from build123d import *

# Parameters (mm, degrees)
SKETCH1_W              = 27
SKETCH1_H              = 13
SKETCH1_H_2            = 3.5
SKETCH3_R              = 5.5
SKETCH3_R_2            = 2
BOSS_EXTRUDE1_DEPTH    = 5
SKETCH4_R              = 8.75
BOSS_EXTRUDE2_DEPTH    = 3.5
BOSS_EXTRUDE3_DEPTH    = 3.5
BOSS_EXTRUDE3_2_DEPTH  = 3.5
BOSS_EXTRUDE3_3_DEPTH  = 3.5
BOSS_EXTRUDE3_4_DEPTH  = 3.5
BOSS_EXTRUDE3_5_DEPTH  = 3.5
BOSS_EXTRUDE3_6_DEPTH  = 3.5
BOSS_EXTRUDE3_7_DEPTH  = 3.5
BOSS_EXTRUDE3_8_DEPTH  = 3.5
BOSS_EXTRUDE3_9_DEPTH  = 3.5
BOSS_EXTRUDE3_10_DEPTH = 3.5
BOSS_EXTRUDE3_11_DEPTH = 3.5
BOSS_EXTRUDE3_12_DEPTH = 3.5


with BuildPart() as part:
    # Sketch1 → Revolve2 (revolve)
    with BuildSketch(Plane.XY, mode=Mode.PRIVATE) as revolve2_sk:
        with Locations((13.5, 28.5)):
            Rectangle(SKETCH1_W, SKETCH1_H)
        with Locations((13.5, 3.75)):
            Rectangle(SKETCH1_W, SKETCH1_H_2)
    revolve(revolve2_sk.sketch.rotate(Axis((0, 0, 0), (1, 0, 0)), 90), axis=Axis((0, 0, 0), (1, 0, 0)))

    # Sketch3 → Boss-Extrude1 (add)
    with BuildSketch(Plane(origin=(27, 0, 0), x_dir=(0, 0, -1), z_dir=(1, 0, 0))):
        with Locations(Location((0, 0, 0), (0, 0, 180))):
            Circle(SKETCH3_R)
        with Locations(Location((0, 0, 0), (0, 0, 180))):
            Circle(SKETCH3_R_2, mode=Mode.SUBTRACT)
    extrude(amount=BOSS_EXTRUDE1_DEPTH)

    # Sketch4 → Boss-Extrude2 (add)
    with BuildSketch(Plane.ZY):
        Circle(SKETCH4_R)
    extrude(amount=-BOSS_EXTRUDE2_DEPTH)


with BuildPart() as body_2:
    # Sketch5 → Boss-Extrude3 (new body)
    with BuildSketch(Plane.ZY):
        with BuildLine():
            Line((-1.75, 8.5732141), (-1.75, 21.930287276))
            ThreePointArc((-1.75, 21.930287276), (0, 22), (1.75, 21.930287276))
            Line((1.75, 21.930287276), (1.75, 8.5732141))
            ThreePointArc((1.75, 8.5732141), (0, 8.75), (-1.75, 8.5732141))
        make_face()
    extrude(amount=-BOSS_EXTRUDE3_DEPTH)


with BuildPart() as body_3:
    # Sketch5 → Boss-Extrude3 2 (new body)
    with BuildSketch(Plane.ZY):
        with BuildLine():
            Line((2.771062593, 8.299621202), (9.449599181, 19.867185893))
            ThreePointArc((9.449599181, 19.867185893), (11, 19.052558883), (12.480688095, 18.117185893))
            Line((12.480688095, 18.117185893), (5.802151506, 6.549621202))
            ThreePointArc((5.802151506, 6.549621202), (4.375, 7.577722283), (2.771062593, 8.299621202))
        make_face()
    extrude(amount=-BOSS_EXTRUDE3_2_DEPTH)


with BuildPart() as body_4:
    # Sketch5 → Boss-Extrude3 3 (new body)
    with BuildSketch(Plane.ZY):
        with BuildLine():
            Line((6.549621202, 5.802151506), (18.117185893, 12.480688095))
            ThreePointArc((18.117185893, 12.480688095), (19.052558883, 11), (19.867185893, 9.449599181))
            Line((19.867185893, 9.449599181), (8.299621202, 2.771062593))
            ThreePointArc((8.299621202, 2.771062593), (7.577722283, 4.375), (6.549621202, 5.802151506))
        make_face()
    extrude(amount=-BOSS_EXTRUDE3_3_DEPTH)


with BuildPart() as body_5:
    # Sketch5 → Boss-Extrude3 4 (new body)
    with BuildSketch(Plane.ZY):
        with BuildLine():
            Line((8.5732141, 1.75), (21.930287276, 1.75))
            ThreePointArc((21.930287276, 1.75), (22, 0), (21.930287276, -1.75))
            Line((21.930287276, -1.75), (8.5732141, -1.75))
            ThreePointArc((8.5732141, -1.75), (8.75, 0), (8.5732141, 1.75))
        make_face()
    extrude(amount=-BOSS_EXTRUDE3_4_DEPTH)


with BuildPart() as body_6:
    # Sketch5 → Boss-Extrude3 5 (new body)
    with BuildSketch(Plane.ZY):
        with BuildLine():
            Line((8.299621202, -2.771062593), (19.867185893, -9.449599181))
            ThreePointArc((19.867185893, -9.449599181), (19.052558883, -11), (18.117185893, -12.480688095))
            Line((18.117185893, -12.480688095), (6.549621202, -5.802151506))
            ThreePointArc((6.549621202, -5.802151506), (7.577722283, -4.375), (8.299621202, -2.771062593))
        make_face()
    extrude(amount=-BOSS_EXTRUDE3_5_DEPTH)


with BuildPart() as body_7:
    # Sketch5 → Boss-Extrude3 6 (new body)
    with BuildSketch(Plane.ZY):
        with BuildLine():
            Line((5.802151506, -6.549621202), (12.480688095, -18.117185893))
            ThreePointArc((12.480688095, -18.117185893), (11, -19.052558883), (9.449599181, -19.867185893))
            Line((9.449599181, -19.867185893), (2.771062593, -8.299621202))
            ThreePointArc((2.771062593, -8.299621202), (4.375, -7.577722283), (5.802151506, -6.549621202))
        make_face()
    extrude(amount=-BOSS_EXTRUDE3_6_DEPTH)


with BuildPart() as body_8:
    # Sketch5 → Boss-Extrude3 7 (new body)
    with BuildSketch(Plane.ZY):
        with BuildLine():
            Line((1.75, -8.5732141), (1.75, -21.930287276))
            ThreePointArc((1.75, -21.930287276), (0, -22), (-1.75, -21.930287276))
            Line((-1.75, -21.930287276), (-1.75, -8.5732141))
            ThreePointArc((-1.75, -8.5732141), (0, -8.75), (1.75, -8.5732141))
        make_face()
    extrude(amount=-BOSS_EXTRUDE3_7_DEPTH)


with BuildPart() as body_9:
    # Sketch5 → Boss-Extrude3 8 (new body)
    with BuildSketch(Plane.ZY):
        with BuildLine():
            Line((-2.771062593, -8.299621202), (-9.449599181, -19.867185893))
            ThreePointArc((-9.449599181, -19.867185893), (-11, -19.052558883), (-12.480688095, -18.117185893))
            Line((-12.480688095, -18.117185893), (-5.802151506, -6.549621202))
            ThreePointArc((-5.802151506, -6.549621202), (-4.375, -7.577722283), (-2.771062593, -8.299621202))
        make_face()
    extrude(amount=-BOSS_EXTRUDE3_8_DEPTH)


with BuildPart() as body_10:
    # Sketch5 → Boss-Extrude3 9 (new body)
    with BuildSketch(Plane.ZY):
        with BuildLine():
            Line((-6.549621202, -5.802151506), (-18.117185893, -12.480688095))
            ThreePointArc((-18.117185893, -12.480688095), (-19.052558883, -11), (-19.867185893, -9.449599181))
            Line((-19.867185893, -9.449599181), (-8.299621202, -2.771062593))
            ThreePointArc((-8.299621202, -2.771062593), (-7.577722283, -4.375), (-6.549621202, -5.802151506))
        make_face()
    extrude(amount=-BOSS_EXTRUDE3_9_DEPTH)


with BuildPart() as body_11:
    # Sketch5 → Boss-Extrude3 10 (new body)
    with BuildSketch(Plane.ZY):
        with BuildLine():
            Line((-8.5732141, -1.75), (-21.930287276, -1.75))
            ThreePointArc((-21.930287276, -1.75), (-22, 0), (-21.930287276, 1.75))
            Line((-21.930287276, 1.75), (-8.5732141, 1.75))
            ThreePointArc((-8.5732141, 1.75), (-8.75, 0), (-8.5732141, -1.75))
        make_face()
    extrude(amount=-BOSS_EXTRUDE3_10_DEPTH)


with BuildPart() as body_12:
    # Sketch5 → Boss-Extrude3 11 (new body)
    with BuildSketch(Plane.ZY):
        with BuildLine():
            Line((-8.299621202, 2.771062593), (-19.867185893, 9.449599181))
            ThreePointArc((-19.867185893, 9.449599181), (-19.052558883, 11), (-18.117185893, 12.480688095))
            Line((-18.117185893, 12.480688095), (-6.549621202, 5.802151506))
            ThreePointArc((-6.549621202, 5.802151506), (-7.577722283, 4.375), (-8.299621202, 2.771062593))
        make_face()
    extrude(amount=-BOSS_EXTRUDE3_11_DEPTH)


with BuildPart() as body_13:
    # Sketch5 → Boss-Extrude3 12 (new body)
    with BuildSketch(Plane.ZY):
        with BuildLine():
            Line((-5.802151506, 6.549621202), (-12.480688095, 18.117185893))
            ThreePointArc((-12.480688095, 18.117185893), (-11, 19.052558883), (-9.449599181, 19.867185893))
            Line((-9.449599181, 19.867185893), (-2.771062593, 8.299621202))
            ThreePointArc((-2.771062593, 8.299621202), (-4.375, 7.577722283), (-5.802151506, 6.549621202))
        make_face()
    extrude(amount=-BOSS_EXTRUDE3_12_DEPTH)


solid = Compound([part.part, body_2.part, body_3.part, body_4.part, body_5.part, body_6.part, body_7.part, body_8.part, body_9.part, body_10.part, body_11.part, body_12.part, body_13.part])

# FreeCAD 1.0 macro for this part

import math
import FreeCAD as App
import Part
import Sketcher
from FreeCAD import Vector
Q = App.Units.Quantity


def add_polygon(sketch, points):
    """Adds a closed chain of lines whose ends are joined by coincident constraints."""
    first, n = sketch.GeometryCount, len(points)
    for a, b in zip(points, points[1:] + points[:1]):
        sketch.addGeometry(Part.LineSegment(App.Vector(*a, 0), App.Vector(*b, 0)), False)
    for i in range(n):
        sketch.addConstraint(Sketcher.Constraint("Coincident", first + i, 2, first + (i + 1) % n, 1))

doc = App.newDocument("Part")
params = doc.addObject("Spreadsheet::Sheet", "Params")
for row, (alias, value) in enumerate([
    ("sketch1_width", "27 mm"),
    ("sketch1_height", "13 mm"),
    ("sketch1_height2", "3.5 mm"),
    ("revolution_angle", "360 deg"),
    ("sketch2_diameter", "11 mm"),
    ("sketch2_diameter2", "4 mm"),
    ("pad1_length", "5 mm"),
    ("sketch3_diameter", "17.5 mm"),
    ("pad2_length", "3.5 mm"),
    ("sketch4_radius", "22 mm"),
    ("sketch4_radius2", "8.75 mm"),
    ("pad3_length", "3.5 mm"),
    ("sketch5_radius", "22 mm"),
    ("sketch5_radius2", "8.75 mm"),
    ("pad4_length", "3.5 mm"),
    ("sketch6_radius", "22 mm"),
    ("sketch6_radius2", "8.75 mm"),
    ("pad5_length", "3.5 mm"),
    ("sketch7_radius", "22 mm"),
    ("sketch7_radius2", "8.75 mm"),
    ("pad6_length", "3.5 mm"),
    ("sketch8_radius", "22 mm"),
    ("sketch8_radius2", "8.75 mm"),
    ("pad7_length", "3.5 mm"),
    ("sketch9_radius", "22 mm"),
    ("sketch9_radius2", "8.75 mm"),
    ("pad8_length", "3.5 mm"),
    ("sketch10_radius", "22 mm"),
    ("sketch10_radius2", "8.75 mm"),
    ("pad9_length", "3.5 mm"),
    ("sketch11_radius", "22 mm"),
    ("sketch11_radius2", "8.75 mm"),
    ("pad10_length", "3.5 mm"),
    ("sketch12_radius", "22 mm"),
    ("sketch12_radius2", "8.75 mm"),
    ("pad11_length", "3.5 mm"),
    ("sketch13_radius", "22 mm"),
    ("sketch13_radius2", "8.75 mm"),
    ("pad12_length", "3.5 mm"),
    ("sketch14_radius", "22 mm"),
    ("sketch14_radius2", "8.75 mm"),
    ("pad13_length", "3.5 mm"),
    ("sketch15_radius", "22 mm"),
    ("sketch15_radius2", "8.75 mm"),
    ("pad14_length", "3.5 mm"),
], start=1):
    params.set(f"A{row}", alias)
    params.set(f"B{row}", "=" + value)
    params.setAlias(f"B{row}", alias)

body = doc.addObject("PartDesign::Body", "Body")
body.AllowCompound = True

sketch1 = body.newObject("Sketcher::SketchObject", "Sketch")
sketch1.AttachmentSupport = (doc.getObject("XY_Plane"), [""])
sketch1.MapMode = "FlatFace"
add_polygon(sketch1, [(0, 35), (0, 22), (27, 22), (27, 35)])
add_polygon(sketch1, [(0, 5.5), (0, 2), (27, 2), (27, 5.5)])
sketch1.addConstraint([
    Sketcher.Constraint("Vertical", 0),
    Sketcher.Constraint("Horizontal", 1),
    Sketcher.Constraint("Vertical", 2),
    Sketcher.Constraint("Horizontal", 3),
    Sketcher.Constraint("Vertical", 4),
    Sketcher.Constraint("Horizontal", 5),
    Sketcher.Constraint("Vertical", 6),
    Sketcher.Constraint("Horizontal", 7),
    Sketcher.Constraint("PointOnObject", 0, 2, -2),
    Sketcher.Constraint("PointOnObject", 4, 2, -2),
    Sketcher.Constraint("Vertical", 2, 2, 5, 2),
    Sketcher.Constraint("DistanceX", 1, 1, 1, 2, 27.0),
    Sketcher.Constraint("DistanceY", 0, 2, 0, 1, 13.0),
    Sketcher.Constraint("DistanceY", 4, 2, 4, 1, 3.5),
    Sketcher.Constraint("DistanceY", -1, 1, 0, 2, 22.0),
    Sketcher.Constraint("DistanceY", -1, 1, 4, 2, 2.0),
])
sketch1.setExpression("Constraints[19]", "Params.sketch1_width")
sketch1.setExpression("Constraints[20]", "Params.sketch1_height")
sketch1.setExpression("Constraints[21]", "Params.sketch1_height2")
revolution = body.newObject("PartDesign::Revolution", "Revolution")
revolution.Profile = sketch1
revolution.ReferenceAxis = (sketch1, ["H_Axis"])
revolution.setExpression("Angle", "Params.revolution_angle")

sketch2 = body.newObject("Sketcher::SketchObject", "Sketch001")
sketch2.AttachmentSupport = (doc.getObject("YZ_Plane"), [""])
sketch2.MapMode = "FlatFace"
sketch2.AttachmentOffset = App.Placement(Vector(0, 0, 27), App.Rotation())
sketch2.addGeometry([
    Part.Circle(Vector(0, 0, 0), Vector(0, 0, 1), 5.5),
    Part.Circle(Vector(0, 0, 0), Vector(0, 0, 1), 2),
], False)
sketch2.addConstraint([
    Sketcher.Constraint("Coincident", 0, 3, -1, 1),
    Sketcher.Constraint("Coincident", 1, 3, -1, 1),
    Sketcher.Constraint("Diameter", 0, 11.0),
    Sketcher.Constraint("Diameter", 1, 4.0),
])
sketch2.setExpression("Constraints[2]", "Params.sketch2_diameter")
sketch2.setExpression("Constraints[3]", "Params.sketch2_diameter2")
pad1 = body.newObject("PartDesign::Pad", "Pad")
pad1.Profile = sketch2
pad1.setExpression("Length", "Params.pad1_length")

sketch3 = body.newObject("Sketcher::SketchObject", "Sketch002")
sketch3.AttachmentSupport = (doc.getObject("YZ_Plane"), [""])
sketch3.MapMode = "FlatFace"
sketch3.addGeometry(Part.Circle(Vector(0, 0, 0), Vector(0, 0, 1), 9), False)
sketch3.addConstraint([
    Sketcher.Constraint("Coincident", 0, 3, -1, 1),
    Sketcher.Constraint("Diameter", 0, 17.5),
])
sketch3.setExpression("Constraints[1]", "Params.sketch3_diameter")
pad2 = body.newObject("PartDesign::Pad", "Pad001")
pad2.Profile = sketch3
pad2.setExpression("Length", "Params.pad2_length")
body2 = doc.addObject("PartDesign::Body", "Body001")

sketch4 = body2.newObject("Sketcher::SketchObject", "Sketch003")
sketch4.AttachmentSupport = (doc.getObject("YZ_Plane001"), [""])
sketch4.MapMode = "FlatFace"
sketch4.addGeometry([
    Part.LineSegment(Vector(21.9, -1.8, 0), Vector(8.6, -1.8, 0)),
    Part.ArcOfCircle(Part.Circle(Vector(0, 0, 0), Vector(0, 0, 1), 8.8), math.radians(-12), math.radians(12)),
    Part.LineSegment(Vector(8.6, 1.8, 0), Vector(21.9, 1.8, 0)),
    Part.ArcOfCircle(Part.Circle(Vector(0, 0, 0), Vector(0, 0, 1), 22), math.radians(-4.56), math.radians(4.56)),
], False)
sketch4.addConstraint([
    Sketcher.Constraint("Coincident", 0, 2, 1, 1),
    Sketcher.Constraint("Coincident", 1, 2, 2, 1),
    Sketcher.Constraint("Coincident", 2, 2, 3, 2),
    Sketcher.Constraint("Coincident", 3, 1, 0, 1),
    Sketcher.Constraint("Horizontal", 0),
    Sketcher.Constraint("Horizontal", 2),
    Sketcher.Constraint("Coincident", 1, 3, -1, 1),
    Sketcher.Constraint("Coincident", 3, 3, -1, 1),
    Sketcher.Constraint("Vertical", 0, 2, 1, 2),
    Sketcher.Constraint("Radius", 3, 22.0),
    Sketcher.Constraint("Radius", 1, 8.75),
    Sketcher.Constraint("DistanceY", 0, 2, 1, 2, 3.5),
])
sketch4.setExpression("Constraints[9]", "Params.sketch4_radius")
sketch4.setExpression("Constraints[10]", "Params.sketch4_radius2")
pad3 = body2.newObject("PartDesign::Pad", "Pad002")
pad3.Profile = sketch4
pad3.setExpression("Length", "Params.pad3_length")
body3 = doc.addObject("PartDesign::Body", "Body002")

sketch5 = body3.newObject("Sketcher::SketchObject", "Sketch004")
sketch5.AttachmentSupport = (doc.getObject("YZ_Plane002"), [""])
sketch5.MapMode = "FlatFace"
sketch5.addGeometry([
    Part.LineSegment(Vector(19.9, 9.4, 0), Vector(8.3, 2.8, 0)),
    Part.ArcOfCircle(Part.Circle(Vector(0, 0, 0), Vector(0, 0, 1), 8.7), math.radians(18), math.radians(42)),
    Part.LineSegment(Vector(6.5, 5.8, 0), Vector(18.1, 12.5, 0)),
    Part.ArcOfCircle(Part.Circle(Vector(0, 0, 0), Vector(0, 0, 1), 22), math.radians(25.44), math.radians(34.56)),
], False)
sketch5.addConstraint([
    Sketcher.Constraint("Coincident", 0, 2, 1, 1),
    Sketcher.Constraint("Coincident", 1, 2, 2, 1),
    Sketcher.Constraint("Coincident", 2, 2, 3, 2),
    Sketcher.Constraint("Coincident", 3, 1, 0, 1),
    Sketcher.Constraint("Coincident", 1, 3, -1, 1),
    Sketcher.Constraint("Coincident", 3, 3, -1, 1),
    Sketcher.Constraint("Parallel", 0, 2),
    Sketcher.Constraint("Equal", 0, 2),
    Sketcher.Constraint("Radius", 3, 22.0),
    Sketcher.Constraint("Angle", 0, Q("-150 deg")),
    Sketcher.Constraint("Radius", 1, 8.75),
    Sketcher.Constraint("DistanceX", 1, 2, 0, 2, 1.75),
])
sketch5.setExpression("Constraints[8]", "Params.sketch5_radius")
sketch5.setExpression("Constraints[10]", "Params.sketch5_radius2")
pad4 = body3.newObject("PartDesign::Pad", "Pad003")
pad4.Profile = sketch5
pad4.setExpression("Length", "Params.pad4_length")
body4 = doc.addObject("PartDesign::Body", "Body003")

sketch6 = body4.newObject("Sketcher::SketchObject", "Sketch005")
sketch6.AttachmentSupport = (doc.getObject("YZ_Plane003"), [""])
sketch6.MapMode = "FlatFace"
sketch6.addGeometry([
    Part.LineSegment(Vector(12.5, 18.1, 0), Vector(5.8, 6.5, 0)),
    Part.ArcOfCircle(Part.Circle(Vector(0, 0, 0), Vector(0, 0, 1), 8.7), math.radians(48), math.radians(72)),
    Part.LineSegment(Vector(2.8, 8.3, 0), Vector(9.4, 19.9, 0)),
    Part.ArcOfCircle(Part.Circle(Vector(0, 0, 0), Vector(0, 0, 1), 22), math.radians(55.44), math.radians(64.56)),
], False)
sketch6.addConstraint([
    Sketcher.Constraint("Coincident", 0, 2, 1, 1),
    Sketcher.Constraint("Coincident", 1, 2, 2, 1),
    Sketcher.Constraint("Coincident", 2, 2, 3, 2),
    Sketcher.Constraint("Coincident", 3, 1, 0, 1),
    Sketcher.Constraint("Coincident", 1, 3, -1, 1),
    Sketcher.Constraint("Coincident", 3, 3, -1, 1),
    Sketcher.Constraint("Parallel", 0, 2),
    Sketcher.Constraint("Equal", 0, 2),
    Sketcher.Constraint("Radius", 3, 22.0),
    Sketcher.Constraint("Angle", 0, Q("-120 deg")),
    Sketcher.Constraint("Radius", 1, 8.75),
    Sketcher.Constraint("DistanceY", 0, 2, 1, 2, 1.75),
])
sketch6.setExpression("Constraints[8]", "Params.sketch6_radius")
sketch6.setExpression("Constraints[10]", "Params.sketch6_radius2")
pad5 = body4.newObject("PartDesign::Pad", "Pad004")
pad5.Profile = sketch6
pad5.setExpression("Length", "Params.pad5_length")
body5 = doc.addObject("PartDesign::Body", "Body004")

sketch7 = body5.newObject("Sketcher::SketchObject", "Sketch006")
sketch7.AttachmentSupport = (doc.getObject("YZ_Plane004"), [""])
sketch7.MapMode = "FlatFace"
sketch7.addGeometry([
    Part.LineSegment(Vector(1.8, 21.9, 0), Vector(1.8, 8.6, 0)),
    Part.ArcOfCircle(Part.Circle(Vector(0, 0, 0), Vector(0, 0, 1), 8.8), math.radians(78), math.radians(102)),
    Part.LineSegment(Vector(-1.8, 8.6, 0), Vector(-1.8, 21.9, 0)),
    Part.ArcOfCircle(Part.Circle(Vector(0, 0, 0), Vector(0, 0, 1), 22), math.radians(85.44), math.radians(94.56)),
], False)
sketch7.addConstraint([
    Sketcher.Constraint("Coincident", 0, 2, 1, 1),
    Sketcher.Constraint("Coincident", 1, 2, 2, 1),
    Sketcher.Constraint("Coincident", 2, 2, 3, 2),
    Sketcher.Constraint("Coincident", 3, 1, 0, 1),
    Sketcher.Constraint("Vertical", 0),
    Sketcher.Constraint("Vertical", 2),
    Sketcher.Constraint("Coincident", 1, 3, -1, 1),
    Sketcher.Constraint("Coincident", 3, 3, -1, 1),
    Sketcher.Constraint("Horizontal", 0, 2, 1, 2),
    Sketcher.Constraint("Radius", 3, 22.0),
    Sketcher.Constraint("Radius", 1, 8.75),
    Sketcher.Constraint("DistanceX", 1, 2, 0, 2, 3.5),
])
sketch7.setExpression("Constraints[9]", "Params.sketch7_radius")
sketch7.setExpression("Constraints[10]", "Params.sketch7_radius2")
pad6 = body5.newObject("PartDesign::Pad", "Pad005")
pad6.Profile = sketch7
pad6.setExpression("Length", "Params.pad6_length")
body6 = doc.addObject("PartDesign::Body", "Body005")

sketch8 = body6.newObject("Sketcher::SketchObject", "Sketch007")
sketch8.AttachmentSupport = (doc.getObject("YZ_Plane005"), [""])
sketch8.MapMode = "FlatFace"
sketch8.addGeometry([
    Part.LineSegment(Vector(-9.4, 19.9, 0), Vector(-2.8, 8.3, 0)),
    Part.ArcOfCircle(Part.Circle(Vector(0, 0, 0), Vector(0, 0, 1), 8.7), math.radians(108), math.radians(132)),
    Part.LineSegment(Vector(-5.8, 6.5, 0), Vector(-12.5, 18.1, 0)),
    Part.ArcOfCircle(Part.Circle(Vector(0, 0, 0), Vector(0, 0, 1), 22), math.radians(115.44), math.radians(124.56)),
], False)
sketch8.addConstraint([
    Sketcher.Constraint("Coincident", 0, 2, 1, 1),
    Sketcher.Constraint("Coincident", 1, 2, 2, 1),
    Sketcher.Constraint("Coincident", 2, 2, 3, 2),
    Sketcher.Constraint("Coincident", 3, 1, 0, 1),
    Sketcher.Constraint("Coincident", 1, 3, -1, 1),
    Sketcher.Constraint("Coincident", 3, 3, -1, 1),
    Sketcher.Constraint("Parallel", 0, 2),
    Sketcher.Constraint("Equal", 0, 2),
    Sketcher.Constraint("Radius", 3, 22.0),
    Sketcher.Constraint("Angle", 0, Q("-60 deg")),
    Sketcher.Constraint("Radius", 1, 8.75),
    Sketcher.Constraint("DistanceY", 1, 2, 0, 2, 1.75),
])
sketch8.setExpression("Constraints[8]", "Params.sketch8_radius")
sketch8.setExpression("Constraints[10]", "Params.sketch8_radius2")
pad7 = body6.newObject("PartDesign::Pad", "Pad006")
pad7.Profile = sketch8
pad7.setExpression("Length", "Params.pad7_length")
body7 = doc.addObject("PartDesign::Body", "Body006")

sketch9 = body7.newObject("Sketcher::SketchObject", "Sketch008")
sketch9.AttachmentSupport = (doc.getObject("YZ_Plane006"), [""])
sketch9.MapMode = "FlatFace"
sketch9.addGeometry([
    Part.LineSegment(Vector(-18.1, 12.5, 0), Vector(-6.5, 5.8, 0)),
    Part.ArcOfCircle(Part.Circle(Vector(0, 0, 0), Vector(0, 0, 1), 8.7), math.radians(138), math.radians(162)),
    Part.LineSegment(Vector(-8.3, 2.8, 0), Vector(-19.9, 9.4, 0)),
    Part.ArcOfCircle(Part.Circle(Vector(0, 0, 0), Vector(0, 0, 1), 22), math.radians(145.44), math.radians(154.56)),
], False)
sketch9.addConstraint([
    Sketcher.Constraint("Coincident", 0, 2, 1, 1),
    Sketcher.Constraint("Coincident", 1, 2, 2, 1),
    Sketcher.Constraint("Coincident", 2, 2, 3, 2),
    Sketcher.Constraint("Coincident", 3, 1, 0, 1),
    Sketcher.Constraint("Coincident", 1, 3, -1, 1),
    Sketcher.Constraint("Coincident", 3, 3, -1, 1),
    Sketcher.Constraint("Parallel", 0, 2),
    Sketcher.Constraint("Equal", 0, 2),
    Sketcher.Constraint("Radius", 3, 22.0),
    Sketcher.Constraint("Angle", 0, Q("-30 deg")),
    Sketcher.Constraint("Radius", 1, 8.75),
    Sketcher.Constraint("DistanceX", 1, 2, 0, 2, 1.75),
])
sketch9.setExpression("Constraints[8]", "Params.sketch9_radius")
sketch9.setExpression("Constraints[10]", "Params.sketch9_radius2")
pad8 = body7.newObject("PartDesign::Pad", "Pad007")
pad8.Profile = sketch9
pad8.setExpression("Length", "Params.pad8_length")
body8 = doc.addObject("PartDesign::Body", "Body007")

sketch10 = body8.newObject("Sketcher::SketchObject", "Sketch009")
sketch10.AttachmentSupport = (doc.getObject("YZ_Plane007"), [""])
sketch10.MapMode = "FlatFace"
sketch10.addGeometry([
    Part.LineSegment(Vector(-21.9, 1.8, 0), Vector(-8.6, 1.8, 0)),
    Part.ArcOfCircle(Part.Circle(Vector(0, 0, 0), Vector(0, 0, 1), 8.8), math.radians(168), math.radians(192)),
    Part.LineSegment(Vector(-8.6, -1.8, 0), Vector(-21.9, -1.8, 0)),
    Part.ArcOfCircle(Part.Circle(Vector(0, 0, 0), Vector(0, 0, 1), 22), math.radians(175.44), math.radians(184.56)),
], False)
sketch10.addConstraint([
    Sketcher.Constraint("Coincident", 0, 2, 1, 1),
    Sketcher.Constraint("Coincident", 1, 2, 2, 1),
    Sketcher.Constraint("Coincident", 2, 2, 3, 2),
    Sketcher.Constraint("Coincident", 3, 1, 0, 1),
    Sketcher.Constraint("Horizontal", 0),
    Sketcher.Constraint("Horizontal", 2),
    Sketcher.Constraint("Coincident", 1, 3, -1, 1),
    Sketcher.Constraint("Coincident", 3, 3, -1, 1),
    Sketcher.Constraint("Vertical", 0, 2, 1, 2),
    Sketcher.Constraint("Radius", 3, 22.0),
    Sketcher.Constraint("Radius", 1, 8.75),
    Sketcher.Constraint("DistanceY", 1, 2, 0, 2, 3.5),
])
sketch10.setExpression("Constraints[9]", "Params.sketch10_radius")
sketch10.setExpression("Constraints[10]", "Params.sketch10_radius2")
pad9 = body8.newObject("PartDesign::Pad", "Pad008")
pad9.Profile = sketch10
pad9.setExpression("Length", "Params.pad9_length")
body9 = doc.addObject("PartDesign::Body", "Body008")

sketch11 = body9.newObject("Sketcher::SketchObject", "Sketch010")
sketch11.AttachmentSupport = (doc.getObject("YZ_Plane008"), [""])
sketch11.MapMode = "FlatFace"
sketch11.addGeometry([
    Part.LineSegment(Vector(-19.9, -9.4, 0), Vector(-8.3, -2.8, 0)),
    Part.ArcOfCircle(Part.Circle(Vector(0, 0, 0), Vector(0, 0, 1), 8.7), math.radians(-162), math.radians(-138)),
    Part.LineSegment(Vector(-6.5, -5.8, 0), Vector(-18.1, -12.5, 0)),
    Part.ArcOfCircle(Part.Circle(Vector(0, 0, 0), Vector(0, 0, 1), 22), math.radians(-154.56), math.radians(-145.44)),
], False)
sketch11.addConstraint([
    Sketcher.Constraint("Coincident", 0, 2, 1, 1),
    Sketcher.Constraint("Coincident", 1, 2, 2, 1),
    Sketcher.Constraint("Coincident", 2, 2, 3, 2),
    Sketcher.Constraint("Coincident", 3, 1, 0, 1),
    Sketcher.Constraint("Coincident", 1, 3, -1, 1),
    Sketcher.Constraint("Coincident", 3, 3, -1, 1),
    Sketcher.Constraint("Parallel", 0, 2),
    Sketcher.Constraint("Equal", 0, 2),
    Sketcher.Constraint("Radius", 3, 22.0),
    Sketcher.Constraint("Angle", 0, Q("30 deg")),
    Sketcher.Constraint("Radius", 1, 8.75),
    Sketcher.Constraint("DistanceX", 0, 2, 1, 2, 1.75),
])
sketch11.setExpression("Constraints[8]", "Params.sketch11_radius")
sketch11.setExpression("Constraints[10]", "Params.sketch11_radius2")
pad10 = body9.newObject("PartDesign::Pad", "Pad009")
pad10.Profile = sketch11
pad10.setExpression("Length", "Params.pad10_length")
body10 = doc.addObject("PartDesign::Body", "Body009")

sketch12 = body10.newObject("Sketcher::SketchObject", "Sketch011")
sketch12.AttachmentSupport = (doc.getObject("YZ_Plane009"), [""])
sketch12.MapMode = "FlatFace"
sketch12.addGeometry([
    Part.LineSegment(Vector(-12.5, -18.1, 0), Vector(-5.8, -6.5, 0)),
    Part.ArcOfCircle(Part.Circle(Vector(0, 0, 0), Vector(0, 0, 1), 8.7), math.radians(-132), math.radians(-108)),
    Part.LineSegment(Vector(-2.8, -8.3, 0), Vector(-9.4, -19.9, 0)),
    Part.ArcOfCircle(Part.Circle(Vector(0, 0, 0), Vector(0, 0, 1), 22), math.radians(-124.56), math.radians(-115.44)),
], False)
sketch12.addConstraint([
    Sketcher.Constraint("Coincident", 0, 2, 1, 1),
    Sketcher.Constraint("Coincident", 1, 2, 2, 1),
    Sketcher.Constraint("Coincident", 2, 2, 3, 2),
    Sketcher.Constraint("Coincident", 3, 1, 0, 1),
    Sketcher.Constraint("Coincident", 1, 3, -1, 1),
    Sketcher.Constraint("Coincident", 3, 3, -1, 1),
    Sketcher.Constraint("Parallel", 0, 2),
    Sketcher.Constraint("Equal", 0, 2),
    Sketcher.Constraint("Radius", 3, 22.0),
    Sketcher.Constraint("Angle", 0, Q("60 deg")),
    Sketcher.Constraint("Radius", 1, 8.75),
    Sketcher.Constraint("DistanceY", 1, 2, 0, 2, 1.75),
])
sketch12.setExpression("Constraints[8]", "Params.sketch12_radius")
sketch12.setExpression("Constraints[10]", "Params.sketch12_radius2")
pad11 = body10.newObject("PartDesign::Pad", "Pad010")
pad11.Profile = sketch12
pad11.setExpression("Length", "Params.pad11_length")
body11 = doc.addObject("PartDesign::Body", "Body010")

sketch13 = body11.newObject("Sketcher::SketchObject", "Sketch012")
sketch13.AttachmentSupport = (doc.getObject("YZ_Plane010"), [""])
sketch13.MapMode = "FlatFace"
sketch13.addGeometry([
    Part.LineSegment(Vector(-1.8, -21.9, 0), Vector(-1.8, -8.6, 0)),
    Part.ArcOfCircle(Part.Circle(Vector(0, 0, 0), Vector(0, 0, 1), 8.8), math.radians(-102), math.radians(-78)),
    Part.LineSegment(Vector(1.8, -8.6, 0), Vector(1.8, -21.9, 0)),
    Part.ArcOfCircle(Part.Circle(Vector(0, 0, 0), Vector(0, 0, 1), 22), math.radians(-94.56), math.radians(-85.44)),
], False)
sketch13.addConstraint([
    Sketcher.Constraint("Coincident", 0, 2, 1, 1),
    Sketcher.Constraint("Coincident", 1, 2, 2, 1),
    Sketcher.Constraint("Coincident", 2, 2, 3, 2),
    Sketcher.Constraint("Coincident", 3, 1, 0, 1),
    Sketcher.Constraint("Vertical", 0),
    Sketcher.Constraint("Vertical", 2),
    Sketcher.Constraint("Coincident", 1, 3, -1, 1),
    Sketcher.Constraint("Coincident", 3, 3, -1, 1),
    Sketcher.Constraint("Horizontal", 0, 2, 1, 2),
    Sketcher.Constraint("Radius", 3, 22.0),
    Sketcher.Constraint("Radius", 1, 8.75),
    Sketcher.Constraint("DistanceX", 0, 2, 1, 2, 3.5),
])
sketch13.setExpression("Constraints[9]", "Params.sketch13_radius")
sketch13.setExpression("Constraints[10]", "Params.sketch13_radius2")
pad12 = body11.newObject("PartDesign::Pad", "Pad011")
pad12.Profile = sketch13
pad12.setExpression("Length", "Params.pad12_length")
body12 = doc.addObject("PartDesign::Body", "Body011")

sketch14 = body12.newObject("Sketcher::SketchObject", "Sketch013")
sketch14.AttachmentSupport = (doc.getObject("YZ_Plane011"), [""])
sketch14.MapMode = "FlatFace"
sketch14.addGeometry([
    Part.LineSegment(Vector(9.4, -19.9, 0), Vector(2.8, -8.3, 0)),
    Part.ArcOfCircle(Part.Circle(Vector(0, 0, 0), Vector(0, 0, 1), 8.7), math.radians(-72), math.radians(-48)),
    Part.LineSegment(Vector(5.8, -6.5, 0), Vector(12.5, -18.1, 0)),
    Part.ArcOfCircle(Part.Circle(Vector(0, 0, 0), Vector(0, 0, 1), 22), math.radians(-64.56), math.radians(-55.44)),
], False)
sketch14.addConstraint([
    Sketcher.Constraint("Coincident", 0, 2, 1, 1),
    Sketcher.Constraint("Coincident", 1, 2, 2, 1),
    Sketcher.Constraint("Coincident", 2, 2, 3, 2),
    Sketcher.Constraint("Coincident", 3, 1, 0, 1),
    Sketcher.Constraint("Coincident", 1, 3, -1, 1),
    Sketcher.Constraint("Coincident", 3, 3, -1, 1),
    Sketcher.Constraint("Parallel", 0, 2),
    Sketcher.Constraint("Equal", 0, 2),
    Sketcher.Constraint("Radius", 3, 22.0),
    Sketcher.Constraint("Angle", 0, Q("120 deg")),
    Sketcher.Constraint("Radius", 1, 8.75),
    Sketcher.Constraint("DistanceY", 0, 2, 1, 2, 1.75),
])
sketch14.setExpression("Constraints[8]", "Params.sketch14_radius")
sketch14.setExpression("Constraints[10]", "Params.sketch14_radius2")
pad13 = body12.newObject("PartDesign::Pad", "Pad012")
pad13.Profile = sketch14
pad13.setExpression("Length", "Params.pad13_length")
body13 = doc.addObject("PartDesign::Body", "Body012")

sketch15 = body13.newObject("Sketcher::SketchObject", "Sketch014")
sketch15.AttachmentSupport = (doc.getObject("YZ_Plane012"), [""])
sketch15.MapMode = "FlatFace"
sketch15.addGeometry([
    Part.LineSegment(Vector(18.1, -12.5, 0), Vector(6.5, -5.8, 0)),
    Part.ArcOfCircle(Part.Circle(Vector(0, 0, 0), Vector(0, 0, 1), 8.7), math.radians(-42), math.radians(-18)),
    Part.LineSegment(Vector(8.3, -2.8, 0), Vector(19.9, -9.4, 0)),
    Part.ArcOfCircle(Part.Circle(Vector(0, 0, 0), Vector(0, 0, 1), 22), math.radians(-34.56), math.radians(-25.44)),
], False)
sketch15.addConstraint([
    Sketcher.Constraint("Coincident", 0, 2, 1, 1),
    Sketcher.Constraint("Coincident", 1, 2, 2, 1),
    Sketcher.Constraint("Coincident", 2, 2, 3, 2),
    Sketcher.Constraint("Coincident", 3, 1, 0, 1),
    Sketcher.Constraint("Coincident", 1, 3, -1, 1),
    Sketcher.Constraint("Coincident", 3, 3, -1, 1),
    Sketcher.Constraint("Parallel", 0, 2),
    Sketcher.Constraint("Equal", 0, 2),
    Sketcher.Constraint("Radius", 3, 22.0),
    Sketcher.Constraint("Angle", 0, Q("150 deg")),
    Sketcher.Constraint("Radius", 1, 8.75),
    Sketcher.Constraint("DistanceX", 0, 2, 1, 2, 1.75),
])
sketch15.setExpression("Constraints[8]", "Params.sketch15_radius")
sketch15.setExpression("Constraints[10]", "Params.sketch15_radius2")
pad14 = body13.newObject("PartDesign::Pad", "Pad013")
pad14.Profile = sketch15
pad14.setExpression("Length", "Params.pad14_length")

doc.recompute()
